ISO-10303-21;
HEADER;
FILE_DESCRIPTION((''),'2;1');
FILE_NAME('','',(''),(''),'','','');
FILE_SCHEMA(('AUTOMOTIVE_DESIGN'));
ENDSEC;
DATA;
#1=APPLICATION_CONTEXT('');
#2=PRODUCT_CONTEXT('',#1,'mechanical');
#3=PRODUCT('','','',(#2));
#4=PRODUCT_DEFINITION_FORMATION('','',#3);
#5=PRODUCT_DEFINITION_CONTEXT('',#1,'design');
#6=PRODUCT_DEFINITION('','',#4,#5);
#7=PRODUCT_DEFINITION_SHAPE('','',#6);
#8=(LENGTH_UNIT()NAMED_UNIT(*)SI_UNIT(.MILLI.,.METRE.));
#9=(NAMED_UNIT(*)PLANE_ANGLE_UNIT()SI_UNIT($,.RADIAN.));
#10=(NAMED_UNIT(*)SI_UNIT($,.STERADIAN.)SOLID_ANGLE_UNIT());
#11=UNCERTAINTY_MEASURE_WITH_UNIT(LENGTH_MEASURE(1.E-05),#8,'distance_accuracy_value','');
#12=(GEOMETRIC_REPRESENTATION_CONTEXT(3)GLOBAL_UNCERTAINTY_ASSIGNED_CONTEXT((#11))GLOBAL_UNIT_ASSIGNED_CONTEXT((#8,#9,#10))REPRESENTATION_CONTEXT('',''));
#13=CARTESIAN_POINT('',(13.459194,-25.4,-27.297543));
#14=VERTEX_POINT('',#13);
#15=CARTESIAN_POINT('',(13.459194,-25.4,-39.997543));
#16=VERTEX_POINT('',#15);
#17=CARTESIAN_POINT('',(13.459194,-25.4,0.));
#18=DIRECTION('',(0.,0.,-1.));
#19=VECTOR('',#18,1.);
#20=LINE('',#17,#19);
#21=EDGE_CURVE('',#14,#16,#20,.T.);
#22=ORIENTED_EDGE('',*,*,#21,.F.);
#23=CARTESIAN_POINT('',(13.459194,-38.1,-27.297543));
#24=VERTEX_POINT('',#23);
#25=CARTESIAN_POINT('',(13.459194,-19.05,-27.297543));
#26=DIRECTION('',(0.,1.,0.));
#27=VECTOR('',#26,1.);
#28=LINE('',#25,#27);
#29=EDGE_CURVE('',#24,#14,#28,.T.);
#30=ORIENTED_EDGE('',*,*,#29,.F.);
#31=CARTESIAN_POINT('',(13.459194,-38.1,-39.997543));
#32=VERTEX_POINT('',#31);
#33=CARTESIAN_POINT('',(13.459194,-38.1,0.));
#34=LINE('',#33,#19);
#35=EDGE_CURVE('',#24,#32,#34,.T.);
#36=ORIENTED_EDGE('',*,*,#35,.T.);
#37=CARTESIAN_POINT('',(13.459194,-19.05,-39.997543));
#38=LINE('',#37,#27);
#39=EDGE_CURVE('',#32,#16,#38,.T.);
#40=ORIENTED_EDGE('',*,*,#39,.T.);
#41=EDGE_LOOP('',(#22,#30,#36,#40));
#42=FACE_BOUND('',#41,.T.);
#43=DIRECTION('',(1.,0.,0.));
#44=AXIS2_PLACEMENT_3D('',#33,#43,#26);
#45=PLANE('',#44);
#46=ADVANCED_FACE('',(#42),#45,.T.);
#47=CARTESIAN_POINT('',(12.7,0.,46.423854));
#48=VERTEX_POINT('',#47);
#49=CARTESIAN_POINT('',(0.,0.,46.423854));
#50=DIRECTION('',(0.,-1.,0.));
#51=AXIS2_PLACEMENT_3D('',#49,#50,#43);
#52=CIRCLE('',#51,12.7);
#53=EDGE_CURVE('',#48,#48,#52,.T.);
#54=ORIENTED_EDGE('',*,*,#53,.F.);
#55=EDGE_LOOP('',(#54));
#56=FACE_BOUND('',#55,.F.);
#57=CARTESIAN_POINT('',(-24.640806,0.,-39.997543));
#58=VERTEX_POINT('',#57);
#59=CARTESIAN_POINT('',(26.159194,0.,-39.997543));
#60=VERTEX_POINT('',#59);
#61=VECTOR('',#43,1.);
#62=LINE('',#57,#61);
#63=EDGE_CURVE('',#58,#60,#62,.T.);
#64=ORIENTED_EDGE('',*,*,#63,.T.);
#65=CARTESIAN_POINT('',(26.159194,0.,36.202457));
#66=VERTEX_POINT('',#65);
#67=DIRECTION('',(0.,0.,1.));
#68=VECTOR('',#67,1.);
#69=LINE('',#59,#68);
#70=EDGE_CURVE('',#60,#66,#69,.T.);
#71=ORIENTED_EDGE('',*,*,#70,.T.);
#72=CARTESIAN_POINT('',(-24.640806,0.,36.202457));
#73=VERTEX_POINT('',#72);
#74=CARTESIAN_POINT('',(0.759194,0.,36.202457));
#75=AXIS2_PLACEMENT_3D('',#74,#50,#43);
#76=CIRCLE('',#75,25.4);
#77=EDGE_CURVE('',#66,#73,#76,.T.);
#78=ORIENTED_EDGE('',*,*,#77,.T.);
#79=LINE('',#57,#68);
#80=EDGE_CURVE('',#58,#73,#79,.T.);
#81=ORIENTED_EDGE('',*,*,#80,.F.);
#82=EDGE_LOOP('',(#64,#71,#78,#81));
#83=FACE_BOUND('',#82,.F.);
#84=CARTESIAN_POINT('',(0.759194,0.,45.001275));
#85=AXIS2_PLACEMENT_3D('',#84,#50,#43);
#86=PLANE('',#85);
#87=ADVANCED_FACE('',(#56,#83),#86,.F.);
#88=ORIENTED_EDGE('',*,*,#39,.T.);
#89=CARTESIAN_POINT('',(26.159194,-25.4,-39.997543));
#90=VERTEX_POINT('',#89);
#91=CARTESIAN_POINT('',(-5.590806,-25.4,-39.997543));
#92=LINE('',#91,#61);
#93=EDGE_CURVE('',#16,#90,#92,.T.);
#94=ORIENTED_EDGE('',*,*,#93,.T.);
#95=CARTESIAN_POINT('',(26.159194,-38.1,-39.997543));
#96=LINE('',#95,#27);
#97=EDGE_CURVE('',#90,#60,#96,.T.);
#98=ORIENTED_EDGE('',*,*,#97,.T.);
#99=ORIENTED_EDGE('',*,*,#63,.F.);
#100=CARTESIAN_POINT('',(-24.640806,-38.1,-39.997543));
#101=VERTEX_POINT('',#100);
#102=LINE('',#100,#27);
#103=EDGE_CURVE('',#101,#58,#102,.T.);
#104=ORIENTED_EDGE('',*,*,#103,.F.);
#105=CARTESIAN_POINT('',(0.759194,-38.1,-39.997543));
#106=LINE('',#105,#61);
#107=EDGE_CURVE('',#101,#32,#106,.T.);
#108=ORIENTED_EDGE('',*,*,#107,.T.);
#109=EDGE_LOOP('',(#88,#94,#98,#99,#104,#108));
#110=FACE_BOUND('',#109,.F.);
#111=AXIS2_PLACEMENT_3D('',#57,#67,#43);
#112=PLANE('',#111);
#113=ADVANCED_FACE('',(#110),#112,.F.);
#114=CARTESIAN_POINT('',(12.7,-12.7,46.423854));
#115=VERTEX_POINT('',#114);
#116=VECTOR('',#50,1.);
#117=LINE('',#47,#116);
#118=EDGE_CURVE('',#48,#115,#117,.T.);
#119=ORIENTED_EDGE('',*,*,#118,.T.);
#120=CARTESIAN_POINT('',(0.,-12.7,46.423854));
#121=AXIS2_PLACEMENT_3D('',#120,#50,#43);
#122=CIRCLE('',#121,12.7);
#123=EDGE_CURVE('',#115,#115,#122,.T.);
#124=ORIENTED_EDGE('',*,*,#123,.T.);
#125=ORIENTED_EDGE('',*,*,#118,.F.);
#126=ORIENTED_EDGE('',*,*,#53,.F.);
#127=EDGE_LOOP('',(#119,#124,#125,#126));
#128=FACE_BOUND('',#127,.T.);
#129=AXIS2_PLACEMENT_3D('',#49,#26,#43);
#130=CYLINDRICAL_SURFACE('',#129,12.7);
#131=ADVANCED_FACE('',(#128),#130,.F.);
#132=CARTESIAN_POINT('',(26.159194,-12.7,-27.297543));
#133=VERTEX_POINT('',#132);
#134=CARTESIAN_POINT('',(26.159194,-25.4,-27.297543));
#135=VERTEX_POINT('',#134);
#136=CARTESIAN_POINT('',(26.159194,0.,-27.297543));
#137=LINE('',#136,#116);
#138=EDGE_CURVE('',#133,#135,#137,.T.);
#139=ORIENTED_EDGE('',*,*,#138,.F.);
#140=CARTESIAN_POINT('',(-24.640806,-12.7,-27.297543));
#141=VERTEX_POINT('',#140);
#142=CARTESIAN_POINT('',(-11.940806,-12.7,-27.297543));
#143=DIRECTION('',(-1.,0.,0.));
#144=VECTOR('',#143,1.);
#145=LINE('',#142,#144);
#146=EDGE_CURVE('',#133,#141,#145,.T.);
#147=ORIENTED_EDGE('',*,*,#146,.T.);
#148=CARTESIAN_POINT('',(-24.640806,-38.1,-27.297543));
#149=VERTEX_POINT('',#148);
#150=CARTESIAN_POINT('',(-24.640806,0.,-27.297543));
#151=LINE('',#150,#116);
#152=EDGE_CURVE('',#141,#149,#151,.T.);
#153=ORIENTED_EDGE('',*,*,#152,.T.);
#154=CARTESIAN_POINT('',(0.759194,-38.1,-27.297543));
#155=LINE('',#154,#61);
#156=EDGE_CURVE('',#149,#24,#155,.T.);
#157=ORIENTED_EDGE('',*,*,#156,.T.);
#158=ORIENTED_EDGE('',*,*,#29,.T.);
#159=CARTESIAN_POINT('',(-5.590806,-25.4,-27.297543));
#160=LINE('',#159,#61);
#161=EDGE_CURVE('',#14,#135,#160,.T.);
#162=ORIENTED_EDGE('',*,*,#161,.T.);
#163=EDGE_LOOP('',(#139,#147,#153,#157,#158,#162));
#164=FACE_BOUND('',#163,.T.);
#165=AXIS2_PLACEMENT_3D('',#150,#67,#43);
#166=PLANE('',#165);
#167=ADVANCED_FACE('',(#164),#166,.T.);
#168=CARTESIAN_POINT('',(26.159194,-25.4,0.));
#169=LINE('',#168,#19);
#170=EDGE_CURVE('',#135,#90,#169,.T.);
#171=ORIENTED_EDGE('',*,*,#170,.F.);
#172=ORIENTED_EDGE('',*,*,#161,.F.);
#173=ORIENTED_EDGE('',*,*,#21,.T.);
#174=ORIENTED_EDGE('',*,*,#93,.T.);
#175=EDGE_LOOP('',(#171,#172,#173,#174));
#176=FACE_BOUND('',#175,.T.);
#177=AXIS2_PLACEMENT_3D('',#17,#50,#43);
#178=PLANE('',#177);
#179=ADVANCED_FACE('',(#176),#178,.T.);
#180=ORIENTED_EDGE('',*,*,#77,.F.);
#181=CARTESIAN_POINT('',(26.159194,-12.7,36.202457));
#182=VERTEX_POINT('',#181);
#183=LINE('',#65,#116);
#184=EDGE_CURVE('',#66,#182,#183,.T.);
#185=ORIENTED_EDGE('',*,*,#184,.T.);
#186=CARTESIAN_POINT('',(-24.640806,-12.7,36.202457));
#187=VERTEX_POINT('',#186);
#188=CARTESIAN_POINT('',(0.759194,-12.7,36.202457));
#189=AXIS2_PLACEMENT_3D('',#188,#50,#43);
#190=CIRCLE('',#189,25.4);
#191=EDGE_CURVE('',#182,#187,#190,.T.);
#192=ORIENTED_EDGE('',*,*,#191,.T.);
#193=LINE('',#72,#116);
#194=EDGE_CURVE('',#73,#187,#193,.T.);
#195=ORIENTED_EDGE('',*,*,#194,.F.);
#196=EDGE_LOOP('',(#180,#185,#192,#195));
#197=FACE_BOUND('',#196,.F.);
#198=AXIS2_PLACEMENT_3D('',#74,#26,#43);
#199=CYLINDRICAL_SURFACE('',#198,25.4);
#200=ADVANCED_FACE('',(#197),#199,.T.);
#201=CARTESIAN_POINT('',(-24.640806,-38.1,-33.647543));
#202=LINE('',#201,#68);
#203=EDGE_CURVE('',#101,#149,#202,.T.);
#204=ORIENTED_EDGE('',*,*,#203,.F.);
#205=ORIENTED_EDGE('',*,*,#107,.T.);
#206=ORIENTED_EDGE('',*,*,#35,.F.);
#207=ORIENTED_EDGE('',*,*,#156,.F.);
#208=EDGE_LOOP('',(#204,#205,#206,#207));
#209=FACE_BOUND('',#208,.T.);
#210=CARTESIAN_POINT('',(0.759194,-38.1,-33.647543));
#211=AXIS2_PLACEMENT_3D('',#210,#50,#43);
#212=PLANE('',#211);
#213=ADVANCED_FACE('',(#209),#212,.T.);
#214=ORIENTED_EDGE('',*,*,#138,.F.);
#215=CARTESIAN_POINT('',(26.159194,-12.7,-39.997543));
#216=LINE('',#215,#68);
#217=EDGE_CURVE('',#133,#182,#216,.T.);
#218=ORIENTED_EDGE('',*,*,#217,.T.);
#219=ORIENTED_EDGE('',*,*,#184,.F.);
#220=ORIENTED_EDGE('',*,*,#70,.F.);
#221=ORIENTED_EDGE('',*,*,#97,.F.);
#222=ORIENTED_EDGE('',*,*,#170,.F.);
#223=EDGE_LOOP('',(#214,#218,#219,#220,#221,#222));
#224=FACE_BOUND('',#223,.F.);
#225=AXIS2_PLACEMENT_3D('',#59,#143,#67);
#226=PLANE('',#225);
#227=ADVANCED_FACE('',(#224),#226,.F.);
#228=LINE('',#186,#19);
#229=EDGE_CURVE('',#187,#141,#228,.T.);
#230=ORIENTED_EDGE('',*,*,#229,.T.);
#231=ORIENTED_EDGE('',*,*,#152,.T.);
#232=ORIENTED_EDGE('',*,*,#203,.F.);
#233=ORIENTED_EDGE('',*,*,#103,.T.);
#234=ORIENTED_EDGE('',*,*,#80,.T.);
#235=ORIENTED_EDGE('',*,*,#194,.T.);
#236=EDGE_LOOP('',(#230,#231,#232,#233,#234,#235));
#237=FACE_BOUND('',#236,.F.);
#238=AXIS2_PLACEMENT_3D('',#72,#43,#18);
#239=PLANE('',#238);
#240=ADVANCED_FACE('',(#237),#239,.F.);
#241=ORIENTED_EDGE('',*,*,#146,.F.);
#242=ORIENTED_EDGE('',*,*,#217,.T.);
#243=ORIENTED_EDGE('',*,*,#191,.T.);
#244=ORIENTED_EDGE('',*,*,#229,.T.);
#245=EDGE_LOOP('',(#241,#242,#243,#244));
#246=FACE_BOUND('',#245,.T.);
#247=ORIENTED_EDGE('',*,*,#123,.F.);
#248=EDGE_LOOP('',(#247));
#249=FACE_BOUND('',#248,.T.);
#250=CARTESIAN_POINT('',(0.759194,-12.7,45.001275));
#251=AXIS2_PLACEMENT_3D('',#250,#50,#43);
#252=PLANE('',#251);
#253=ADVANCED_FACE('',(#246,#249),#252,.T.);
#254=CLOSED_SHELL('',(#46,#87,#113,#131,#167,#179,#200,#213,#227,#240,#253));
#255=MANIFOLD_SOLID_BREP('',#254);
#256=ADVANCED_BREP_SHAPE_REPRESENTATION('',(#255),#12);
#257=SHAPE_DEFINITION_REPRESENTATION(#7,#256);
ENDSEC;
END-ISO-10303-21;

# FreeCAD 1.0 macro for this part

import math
import FreeCAD as App
import Part
import Sketcher
Q = App.Units.Quantity

doc = App.newDocument("Part")
body = doc.addObject("PartDesign::Body", "Body")

# Sketch on XZ plane
sketch1 = body.newObject("Sketcher::SketchObject", "Sketch")
sketch1.AttachmentSupport = (doc.getObject("XZ_Plane"), [""])
sketch1.MapMode = "FlatFace"
sketch1.addGeometry([
    Part.ArcOfCircle(Part.Circle(App.Vector(1, 36, 0), App.Vector(0, 0, 1), 25), math.radians(0), math.radians(180)),
    Part.LineSegment(App.Vector(-25, 36, 0), App.Vector(-25, -40, 0)),
    Part.LineSegment(App.Vector(-25, -40, 0), App.Vector(26, -40, 0)),
    Part.LineSegment(App.Vector(26, -40, 0), App.Vector(26, 36, 0)),
], False)
sketch1.addConstraint([
    Sketcher.Constraint("Tangent", 0, 2, 1, 1),
    Sketcher.Constraint("Coincident", 1, 2, 2, 1),
    Sketcher.Constraint("Coincident", 2, 2, 3, 1),
    Sketcher.Constraint("Tangent", 3, 2, 0, 1),
    Sketcher.Constraint("Vertical", 1),
    Sketcher.Constraint("Horizontal", 2),
    Sketcher.Constraint("Vertical", 3),
    Sketcher.Constraint("Radius", 0, Q("1 in")),
    Sketcher.Constraint("DistanceY", 1, 2, 1, 1, Q("3 in")),
    Sketcher.Constraint("DistanceX", -1, 1, 0, 3, Q("0.759194 mm")),
    Sketcher.Constraint("DistanceY", -1, 1, 0, 3, Q("36.202457 mm")),
])
pad1 = body.newObject("PartDesign::Pad", "Pad")
pad1.Profile = sketch1
pad1.Length = Q("0.5 in")

# Sketch on XZ plane
sketch2 = body.newObject("Sketcher::SketchObject", "Sketch001")
sketch2.AttachmentSupport = (doc.getObject("XZ_Plane"), [""])
sketch2.MapMode = "FlatFace"
sketch2.addGeometry(Part.Circle(App.Vector(0, 46, 0), App.Vector(0, 0, 1), 13), False)
sketch2.addConstraint([
    Sketcher.Constraint("PointOnObject", 0, 3, -2),
    Sketcher.Constraint("Diameter", 0, Q("1 in")),
    Sketcher.Constraint("DistanceY", -1, 1, 0, 3, Q("46.423854 mm")),
])
pocket1 = body.newObject("PartDesign::Pocket", "Pocket")
pocket1.Profile = sketch2
pocket1.Length = Q("0.5 in")
pocket1.Reversed = True

# Sketch on XZ plane
sketch3 = body.newObject("Sketcher::SketchObject", "Sketch002")
sketch3.AttachmentSupport = (doc.getObject("XZ_Plane"), [""])
sketch3.MapMode = "FlatFace"
sketch3.addGeometry([
    Part.LineSegment(App.Vector(-25, -27, 0), App.Vector(-25, -40, 0)),
    Part.LineSegment(App.Vector(-25, -40, 0), App.Vector(26, -40, 0)),
    Part.LineSegment(App.Vector(26, -40, 0), App.Vector(26, -27, 0)),
    Part.LineSegment(App.Vector(26, -27, 0), App.Vector(-25, -27, 0)),
], False)
sketch3.addConstraint([
    Sketcher.Constraint("Coincident", 0, 2, 1, 1),
    Sketcher.Constraint("Coincident", 1, 2, 2, 1),
    Sketcher.Constraint("Coincident", 2, 2, 3, 1),
    Sketcher.Constraint("Coincident", 3, 2, 0, 1),
    Sketcher.Constraint("Vertical", 0),
    Sketcher.Constraint("Horizontal", 1),
    Sketcher.Constraint("Vertical", 2),
    Sketcher.Constraint("Horizontal", 3),
    Sketcher.Constraint("DistanceX", 1, 1, 1, 2, Q("2 in")),
    Sketcher.Constraint("DistanceY", 0, 2, 0, 1, Q("0.5 in")),
    Sketcher.Constraint("DistanceX", 0, 2, -1, 1, Q("24.640806 mm")),
    Sketcher.Constraint("DistanceY", 0, 2, -1, 1, Q("39.997543 mm")),
])
pad2 = body.newObject("PartDesign::Pad", "Pad001")
pad2.Profile = sketch3
pad2.Length = Q("1.5 in")

# Sketch on XY plane
sketch4 = body.newObject("Sketcher::SketchObject", "Sketch003")
sketch4.AttachmentSupport = (doc.getObject("XY_Plane"), [""])
sketch4.MapMode = "FlatFace"
sketch4.addGeometry([
    Part.LineSegment(App.Vector(13, -25, 0), App.Vector(13, -38, 0)),
    Part.LineSegment(App.Vector(13, -38, 0), App.Vector(26, -38, 0)),
    Part.LineSegment(App.Vector(26, -38, 0), App.Vector(26, -25, 0)),
    Part.LineSegment(App.Vector(26, -25, 0), App.Vector(13, -25, 0)),
], False)
sketch4.addConstraint([
    Sketcher.Constraint("Coincident", 0, 2, 1, 1),
    Sketcher.Constraint("Coincident", 1, 2, 2, 1),
    Sketcher.Constraint("Coincident", 2, 2, 3, 1),
    Sketcher.Constraint("Coincident", 3, 2, 0, 1),
    Sketcher.Constraint("Vertical", 0),
    Sketcher.Constraint("Horizontal", 1),
    Sketcher.Constraint("Vertical", 2),
    Sketcher.Constraint("Horizontal", 3),
    Sketcher.Constraint("Equal", 3, 0),
    Sketcher.Constraint("DistanceX", 1, 1, 1, 2, Q("0.5 in")),
    Sketcher.Constraint("DistanceY", 2, 2, -1, 1, Q("1 in")),
    Sketcher.Constraint("DistanceX", -1, 1, 0, 2, Q("13.459194 mm")),
])
pocket2 = body.newObject("PartDesign::Pocket", "Pocket001")
pocket2.Profile = sketch4
pocket2.Type = "ThroughAll"

doc.recompute()
